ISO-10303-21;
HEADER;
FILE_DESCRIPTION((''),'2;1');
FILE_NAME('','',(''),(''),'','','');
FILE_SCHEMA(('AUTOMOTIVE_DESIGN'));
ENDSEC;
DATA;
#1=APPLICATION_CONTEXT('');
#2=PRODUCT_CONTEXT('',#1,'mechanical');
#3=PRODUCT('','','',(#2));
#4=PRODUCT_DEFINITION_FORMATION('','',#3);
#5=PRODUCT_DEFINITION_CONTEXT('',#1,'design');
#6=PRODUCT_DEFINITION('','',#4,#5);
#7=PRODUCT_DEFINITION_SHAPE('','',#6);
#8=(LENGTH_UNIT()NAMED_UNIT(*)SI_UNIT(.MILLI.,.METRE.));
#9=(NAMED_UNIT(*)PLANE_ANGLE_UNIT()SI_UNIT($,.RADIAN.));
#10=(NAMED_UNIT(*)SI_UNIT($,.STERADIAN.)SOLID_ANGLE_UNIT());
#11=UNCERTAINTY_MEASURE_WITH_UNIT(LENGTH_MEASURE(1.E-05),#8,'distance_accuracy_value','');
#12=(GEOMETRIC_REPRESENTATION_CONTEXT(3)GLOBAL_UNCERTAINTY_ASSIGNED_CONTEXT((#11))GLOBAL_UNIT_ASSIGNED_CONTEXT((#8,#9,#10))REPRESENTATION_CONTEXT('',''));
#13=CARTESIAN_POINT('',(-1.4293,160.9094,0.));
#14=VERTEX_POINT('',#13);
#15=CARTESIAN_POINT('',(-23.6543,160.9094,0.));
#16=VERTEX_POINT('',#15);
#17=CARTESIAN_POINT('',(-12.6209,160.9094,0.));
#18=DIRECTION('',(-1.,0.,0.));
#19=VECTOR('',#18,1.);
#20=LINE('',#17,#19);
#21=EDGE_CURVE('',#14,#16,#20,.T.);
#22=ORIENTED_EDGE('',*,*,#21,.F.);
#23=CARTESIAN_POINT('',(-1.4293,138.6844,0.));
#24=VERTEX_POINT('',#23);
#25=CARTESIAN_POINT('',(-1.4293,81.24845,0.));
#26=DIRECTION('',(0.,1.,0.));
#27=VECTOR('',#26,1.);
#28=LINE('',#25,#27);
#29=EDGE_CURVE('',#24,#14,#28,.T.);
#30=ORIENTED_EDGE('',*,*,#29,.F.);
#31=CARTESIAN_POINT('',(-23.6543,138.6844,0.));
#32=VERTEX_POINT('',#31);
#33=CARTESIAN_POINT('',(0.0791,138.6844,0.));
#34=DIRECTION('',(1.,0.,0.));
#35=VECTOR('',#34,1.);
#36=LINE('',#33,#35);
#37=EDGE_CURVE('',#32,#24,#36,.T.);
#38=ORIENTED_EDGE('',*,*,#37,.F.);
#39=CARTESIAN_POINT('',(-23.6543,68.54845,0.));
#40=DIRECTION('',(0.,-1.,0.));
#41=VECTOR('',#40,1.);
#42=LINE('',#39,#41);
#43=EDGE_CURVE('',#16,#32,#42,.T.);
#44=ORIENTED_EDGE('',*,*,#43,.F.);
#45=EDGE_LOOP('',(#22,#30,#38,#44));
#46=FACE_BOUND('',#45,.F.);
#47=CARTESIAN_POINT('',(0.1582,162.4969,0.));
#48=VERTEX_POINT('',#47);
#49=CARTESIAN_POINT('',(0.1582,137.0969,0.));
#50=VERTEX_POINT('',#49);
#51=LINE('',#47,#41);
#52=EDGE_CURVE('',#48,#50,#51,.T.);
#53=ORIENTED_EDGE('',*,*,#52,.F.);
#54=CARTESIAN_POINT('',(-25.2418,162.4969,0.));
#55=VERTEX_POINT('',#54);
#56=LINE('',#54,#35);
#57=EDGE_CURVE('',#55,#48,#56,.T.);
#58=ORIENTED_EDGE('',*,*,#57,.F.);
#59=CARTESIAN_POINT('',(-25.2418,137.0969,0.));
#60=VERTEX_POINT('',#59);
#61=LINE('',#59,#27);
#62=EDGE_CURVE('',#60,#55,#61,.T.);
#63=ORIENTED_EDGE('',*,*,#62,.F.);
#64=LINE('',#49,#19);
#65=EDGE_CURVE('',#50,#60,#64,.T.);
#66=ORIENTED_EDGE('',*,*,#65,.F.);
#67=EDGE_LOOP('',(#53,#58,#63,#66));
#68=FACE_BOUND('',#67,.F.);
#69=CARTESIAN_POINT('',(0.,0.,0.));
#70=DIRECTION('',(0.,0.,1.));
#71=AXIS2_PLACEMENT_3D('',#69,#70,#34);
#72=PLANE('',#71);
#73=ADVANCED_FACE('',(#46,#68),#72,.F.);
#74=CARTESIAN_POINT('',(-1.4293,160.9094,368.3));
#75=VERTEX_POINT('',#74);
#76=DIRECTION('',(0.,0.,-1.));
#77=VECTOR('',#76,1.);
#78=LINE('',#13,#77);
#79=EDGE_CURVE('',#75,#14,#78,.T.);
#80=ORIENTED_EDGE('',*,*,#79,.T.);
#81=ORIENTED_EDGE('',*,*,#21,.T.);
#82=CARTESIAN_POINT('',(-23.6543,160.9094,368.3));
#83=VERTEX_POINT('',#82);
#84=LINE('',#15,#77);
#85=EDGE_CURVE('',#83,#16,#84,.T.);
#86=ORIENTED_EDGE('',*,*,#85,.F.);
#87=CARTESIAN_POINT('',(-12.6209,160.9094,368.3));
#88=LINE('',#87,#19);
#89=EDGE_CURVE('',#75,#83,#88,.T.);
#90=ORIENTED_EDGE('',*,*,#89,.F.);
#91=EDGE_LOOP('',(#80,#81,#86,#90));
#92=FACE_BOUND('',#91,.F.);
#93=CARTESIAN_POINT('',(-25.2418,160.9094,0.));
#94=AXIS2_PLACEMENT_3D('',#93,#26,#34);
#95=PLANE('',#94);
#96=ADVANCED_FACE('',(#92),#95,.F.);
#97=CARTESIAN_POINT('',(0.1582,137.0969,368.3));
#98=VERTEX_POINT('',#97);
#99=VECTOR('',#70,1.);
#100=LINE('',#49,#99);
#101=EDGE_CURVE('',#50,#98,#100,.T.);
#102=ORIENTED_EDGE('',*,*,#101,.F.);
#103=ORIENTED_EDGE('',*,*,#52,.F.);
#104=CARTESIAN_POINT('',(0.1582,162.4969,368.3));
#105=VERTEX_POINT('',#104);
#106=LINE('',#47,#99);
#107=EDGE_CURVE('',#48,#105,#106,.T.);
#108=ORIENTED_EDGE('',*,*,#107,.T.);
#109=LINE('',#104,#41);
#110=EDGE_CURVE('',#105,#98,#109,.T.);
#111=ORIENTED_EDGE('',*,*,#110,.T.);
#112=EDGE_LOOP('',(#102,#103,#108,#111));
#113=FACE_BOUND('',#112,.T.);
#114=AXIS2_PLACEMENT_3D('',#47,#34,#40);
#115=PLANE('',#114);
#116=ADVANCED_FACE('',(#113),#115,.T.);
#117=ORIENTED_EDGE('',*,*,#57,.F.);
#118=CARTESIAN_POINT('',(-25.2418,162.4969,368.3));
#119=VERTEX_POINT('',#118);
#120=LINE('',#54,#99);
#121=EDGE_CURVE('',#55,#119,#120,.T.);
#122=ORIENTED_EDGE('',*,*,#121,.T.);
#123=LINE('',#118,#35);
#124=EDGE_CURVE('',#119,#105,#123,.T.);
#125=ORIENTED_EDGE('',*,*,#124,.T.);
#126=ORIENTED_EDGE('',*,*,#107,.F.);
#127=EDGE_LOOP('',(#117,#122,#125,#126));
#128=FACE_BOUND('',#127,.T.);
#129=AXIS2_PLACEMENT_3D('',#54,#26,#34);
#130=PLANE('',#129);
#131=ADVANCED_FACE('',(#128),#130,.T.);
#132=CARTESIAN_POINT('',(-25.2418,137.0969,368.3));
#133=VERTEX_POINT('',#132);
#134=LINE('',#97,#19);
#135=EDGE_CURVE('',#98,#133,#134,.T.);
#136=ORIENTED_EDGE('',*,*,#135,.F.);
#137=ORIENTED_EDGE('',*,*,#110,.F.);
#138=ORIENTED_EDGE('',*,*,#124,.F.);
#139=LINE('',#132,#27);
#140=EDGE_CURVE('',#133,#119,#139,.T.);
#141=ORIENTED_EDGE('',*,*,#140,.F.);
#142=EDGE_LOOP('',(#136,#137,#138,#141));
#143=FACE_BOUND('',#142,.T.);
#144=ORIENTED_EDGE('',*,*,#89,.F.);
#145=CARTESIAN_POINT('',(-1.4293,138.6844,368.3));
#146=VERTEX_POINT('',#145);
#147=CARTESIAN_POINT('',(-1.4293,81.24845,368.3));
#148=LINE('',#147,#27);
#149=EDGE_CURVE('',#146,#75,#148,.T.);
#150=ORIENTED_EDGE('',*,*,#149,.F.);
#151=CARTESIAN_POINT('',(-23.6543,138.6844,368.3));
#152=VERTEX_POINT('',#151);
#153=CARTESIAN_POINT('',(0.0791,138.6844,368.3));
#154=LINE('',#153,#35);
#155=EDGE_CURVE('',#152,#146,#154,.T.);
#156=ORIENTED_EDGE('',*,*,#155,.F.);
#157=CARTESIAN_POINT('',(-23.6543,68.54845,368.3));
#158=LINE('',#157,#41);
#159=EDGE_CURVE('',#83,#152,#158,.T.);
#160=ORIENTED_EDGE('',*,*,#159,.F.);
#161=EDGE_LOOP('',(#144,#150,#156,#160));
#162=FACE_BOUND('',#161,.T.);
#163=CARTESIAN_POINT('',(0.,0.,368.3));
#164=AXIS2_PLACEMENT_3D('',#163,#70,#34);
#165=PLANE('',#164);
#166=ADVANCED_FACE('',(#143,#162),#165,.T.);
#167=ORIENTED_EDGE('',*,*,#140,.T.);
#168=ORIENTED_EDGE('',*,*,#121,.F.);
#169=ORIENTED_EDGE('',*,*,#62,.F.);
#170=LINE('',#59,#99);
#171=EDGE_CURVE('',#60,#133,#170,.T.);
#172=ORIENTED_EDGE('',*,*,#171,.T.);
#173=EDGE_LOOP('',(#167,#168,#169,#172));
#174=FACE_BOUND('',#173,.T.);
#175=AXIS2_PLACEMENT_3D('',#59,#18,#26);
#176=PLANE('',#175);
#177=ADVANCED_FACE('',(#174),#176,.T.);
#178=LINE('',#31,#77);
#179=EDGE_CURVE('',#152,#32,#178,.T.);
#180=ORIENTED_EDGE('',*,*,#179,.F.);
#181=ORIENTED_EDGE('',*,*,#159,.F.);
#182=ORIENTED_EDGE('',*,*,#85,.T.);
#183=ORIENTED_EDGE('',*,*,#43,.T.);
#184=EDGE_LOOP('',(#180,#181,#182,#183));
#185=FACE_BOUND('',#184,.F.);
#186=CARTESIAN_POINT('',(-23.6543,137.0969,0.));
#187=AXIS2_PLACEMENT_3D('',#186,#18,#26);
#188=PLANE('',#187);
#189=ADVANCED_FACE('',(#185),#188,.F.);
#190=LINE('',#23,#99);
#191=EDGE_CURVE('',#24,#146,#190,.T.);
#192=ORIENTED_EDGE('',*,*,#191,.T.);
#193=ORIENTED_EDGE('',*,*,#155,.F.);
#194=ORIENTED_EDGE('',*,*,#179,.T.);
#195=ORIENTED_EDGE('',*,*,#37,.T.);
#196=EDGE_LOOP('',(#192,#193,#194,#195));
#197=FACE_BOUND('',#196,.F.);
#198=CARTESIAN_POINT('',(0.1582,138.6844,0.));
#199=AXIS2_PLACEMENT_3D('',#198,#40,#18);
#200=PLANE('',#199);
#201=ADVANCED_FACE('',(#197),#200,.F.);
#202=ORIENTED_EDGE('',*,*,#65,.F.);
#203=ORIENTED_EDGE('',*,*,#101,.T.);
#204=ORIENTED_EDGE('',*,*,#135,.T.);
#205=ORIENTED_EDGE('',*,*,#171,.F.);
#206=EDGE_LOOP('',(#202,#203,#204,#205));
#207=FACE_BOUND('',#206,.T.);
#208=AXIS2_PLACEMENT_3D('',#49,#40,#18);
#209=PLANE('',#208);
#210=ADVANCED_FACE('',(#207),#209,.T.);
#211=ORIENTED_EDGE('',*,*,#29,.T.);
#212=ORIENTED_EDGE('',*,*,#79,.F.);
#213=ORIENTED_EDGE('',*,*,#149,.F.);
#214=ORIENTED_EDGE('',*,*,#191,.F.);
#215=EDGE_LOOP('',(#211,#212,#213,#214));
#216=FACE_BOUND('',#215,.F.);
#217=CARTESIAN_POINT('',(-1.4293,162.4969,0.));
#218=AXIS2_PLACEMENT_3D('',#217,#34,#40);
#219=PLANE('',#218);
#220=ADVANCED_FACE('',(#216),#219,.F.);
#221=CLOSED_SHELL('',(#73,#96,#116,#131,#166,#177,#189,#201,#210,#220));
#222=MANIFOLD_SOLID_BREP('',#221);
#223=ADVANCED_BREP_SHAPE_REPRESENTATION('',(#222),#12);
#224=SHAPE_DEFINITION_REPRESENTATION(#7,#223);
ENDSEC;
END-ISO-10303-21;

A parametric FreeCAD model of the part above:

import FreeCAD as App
import Part
import Sketcher
from FreeCAD import Vector
Q = App.Units.Quantity


def faces_at(feature, points):
    """Names of the faces that lie closest to the given points."""
    faces = feature.Shape.Faces
    near = lambda p: min(range(len(faces)), key=lambda i: faces[i].distToShape(Part.Vertex(*p))[0])
    return sorted({f"Face{near(p) + 1}" for p in points})

doc = App.newDocument("Part")
body = doc.addObject("PartDesign::Body", "Body")

# Sketch on XY plane
sketch1 = body.newObject("Sketcher::SketchObject", "Sketch")
sketch1.AttachmentSupport = (doc.getObject("XY_Plane"), [""])
sketch1.MapMode = "FlatFace"
sketch1.addGeometry([
    Part.LineSegment(Vector(-25.2418, 137.0969, 0), Vector(0.1582, 137.0969, 0)),
    Part.LineSegment(Vector(0.1582, 137.0969, 0), Vector(0.1582, 162.4969, 0)),
    Part.LineSegment(Vector(0.1582, 162.4969, 0), Vector(-25.2418, 162.4969, 0)),
    Part.LineSegment(Vector(-25.2418, 162.4969, 0), Vector(-25.2418, 137.0969, 0)),
], False)
sketch1.addConstraint([
    Sketcher.Constraint("Coincident", 0, 2, 1, 1),
    Sketcher.Constraint("Coincident", 1, 2, 2, 1),
    Sketcher.Constraint("Coincident", 2, 2, 3, 1),
    Sketcher.Constraint("Coincident", 3, 2, 0, 1),
    Sketcher.Constraint("Horizontal", 0),
    Sketcher.Constraint("Vertical", 1),
    Sketcher.Constraint("Horizontal", 2),
    Sketcher.Constraint("Vertical", 3),
    Sketcher.Constraint("Equal", 2, 1),
    Sketcher.Constraint("DistanceX", 0, 1, 0, 2, Q("1 in")),
    Sketcher.Constraint("DistanceX", -1, 1, 0, 2, 0.1582),
    Sketcher.Constraint("DistanceY", -1, 1, 0, 2, 137.097),
])
pad1 = body.newObject("PartDesign::Pad", "Pad")
pad1.Profile = sketch1
pad1.Length = Q("14.5 in")
doc.recompute()

thickness = body.newObject("PartDesign::Thickness", "Thickness")
thickness.Base = (pad1, faces_at(pad1, [(-8.308, 145.564, 0), (-8.308, 145.564, 368.3)]))
thickness.Value = Q("0.0625 in")
thickness.Reversed = True
thickness.Join = "Intersection"

doc.recompute()
